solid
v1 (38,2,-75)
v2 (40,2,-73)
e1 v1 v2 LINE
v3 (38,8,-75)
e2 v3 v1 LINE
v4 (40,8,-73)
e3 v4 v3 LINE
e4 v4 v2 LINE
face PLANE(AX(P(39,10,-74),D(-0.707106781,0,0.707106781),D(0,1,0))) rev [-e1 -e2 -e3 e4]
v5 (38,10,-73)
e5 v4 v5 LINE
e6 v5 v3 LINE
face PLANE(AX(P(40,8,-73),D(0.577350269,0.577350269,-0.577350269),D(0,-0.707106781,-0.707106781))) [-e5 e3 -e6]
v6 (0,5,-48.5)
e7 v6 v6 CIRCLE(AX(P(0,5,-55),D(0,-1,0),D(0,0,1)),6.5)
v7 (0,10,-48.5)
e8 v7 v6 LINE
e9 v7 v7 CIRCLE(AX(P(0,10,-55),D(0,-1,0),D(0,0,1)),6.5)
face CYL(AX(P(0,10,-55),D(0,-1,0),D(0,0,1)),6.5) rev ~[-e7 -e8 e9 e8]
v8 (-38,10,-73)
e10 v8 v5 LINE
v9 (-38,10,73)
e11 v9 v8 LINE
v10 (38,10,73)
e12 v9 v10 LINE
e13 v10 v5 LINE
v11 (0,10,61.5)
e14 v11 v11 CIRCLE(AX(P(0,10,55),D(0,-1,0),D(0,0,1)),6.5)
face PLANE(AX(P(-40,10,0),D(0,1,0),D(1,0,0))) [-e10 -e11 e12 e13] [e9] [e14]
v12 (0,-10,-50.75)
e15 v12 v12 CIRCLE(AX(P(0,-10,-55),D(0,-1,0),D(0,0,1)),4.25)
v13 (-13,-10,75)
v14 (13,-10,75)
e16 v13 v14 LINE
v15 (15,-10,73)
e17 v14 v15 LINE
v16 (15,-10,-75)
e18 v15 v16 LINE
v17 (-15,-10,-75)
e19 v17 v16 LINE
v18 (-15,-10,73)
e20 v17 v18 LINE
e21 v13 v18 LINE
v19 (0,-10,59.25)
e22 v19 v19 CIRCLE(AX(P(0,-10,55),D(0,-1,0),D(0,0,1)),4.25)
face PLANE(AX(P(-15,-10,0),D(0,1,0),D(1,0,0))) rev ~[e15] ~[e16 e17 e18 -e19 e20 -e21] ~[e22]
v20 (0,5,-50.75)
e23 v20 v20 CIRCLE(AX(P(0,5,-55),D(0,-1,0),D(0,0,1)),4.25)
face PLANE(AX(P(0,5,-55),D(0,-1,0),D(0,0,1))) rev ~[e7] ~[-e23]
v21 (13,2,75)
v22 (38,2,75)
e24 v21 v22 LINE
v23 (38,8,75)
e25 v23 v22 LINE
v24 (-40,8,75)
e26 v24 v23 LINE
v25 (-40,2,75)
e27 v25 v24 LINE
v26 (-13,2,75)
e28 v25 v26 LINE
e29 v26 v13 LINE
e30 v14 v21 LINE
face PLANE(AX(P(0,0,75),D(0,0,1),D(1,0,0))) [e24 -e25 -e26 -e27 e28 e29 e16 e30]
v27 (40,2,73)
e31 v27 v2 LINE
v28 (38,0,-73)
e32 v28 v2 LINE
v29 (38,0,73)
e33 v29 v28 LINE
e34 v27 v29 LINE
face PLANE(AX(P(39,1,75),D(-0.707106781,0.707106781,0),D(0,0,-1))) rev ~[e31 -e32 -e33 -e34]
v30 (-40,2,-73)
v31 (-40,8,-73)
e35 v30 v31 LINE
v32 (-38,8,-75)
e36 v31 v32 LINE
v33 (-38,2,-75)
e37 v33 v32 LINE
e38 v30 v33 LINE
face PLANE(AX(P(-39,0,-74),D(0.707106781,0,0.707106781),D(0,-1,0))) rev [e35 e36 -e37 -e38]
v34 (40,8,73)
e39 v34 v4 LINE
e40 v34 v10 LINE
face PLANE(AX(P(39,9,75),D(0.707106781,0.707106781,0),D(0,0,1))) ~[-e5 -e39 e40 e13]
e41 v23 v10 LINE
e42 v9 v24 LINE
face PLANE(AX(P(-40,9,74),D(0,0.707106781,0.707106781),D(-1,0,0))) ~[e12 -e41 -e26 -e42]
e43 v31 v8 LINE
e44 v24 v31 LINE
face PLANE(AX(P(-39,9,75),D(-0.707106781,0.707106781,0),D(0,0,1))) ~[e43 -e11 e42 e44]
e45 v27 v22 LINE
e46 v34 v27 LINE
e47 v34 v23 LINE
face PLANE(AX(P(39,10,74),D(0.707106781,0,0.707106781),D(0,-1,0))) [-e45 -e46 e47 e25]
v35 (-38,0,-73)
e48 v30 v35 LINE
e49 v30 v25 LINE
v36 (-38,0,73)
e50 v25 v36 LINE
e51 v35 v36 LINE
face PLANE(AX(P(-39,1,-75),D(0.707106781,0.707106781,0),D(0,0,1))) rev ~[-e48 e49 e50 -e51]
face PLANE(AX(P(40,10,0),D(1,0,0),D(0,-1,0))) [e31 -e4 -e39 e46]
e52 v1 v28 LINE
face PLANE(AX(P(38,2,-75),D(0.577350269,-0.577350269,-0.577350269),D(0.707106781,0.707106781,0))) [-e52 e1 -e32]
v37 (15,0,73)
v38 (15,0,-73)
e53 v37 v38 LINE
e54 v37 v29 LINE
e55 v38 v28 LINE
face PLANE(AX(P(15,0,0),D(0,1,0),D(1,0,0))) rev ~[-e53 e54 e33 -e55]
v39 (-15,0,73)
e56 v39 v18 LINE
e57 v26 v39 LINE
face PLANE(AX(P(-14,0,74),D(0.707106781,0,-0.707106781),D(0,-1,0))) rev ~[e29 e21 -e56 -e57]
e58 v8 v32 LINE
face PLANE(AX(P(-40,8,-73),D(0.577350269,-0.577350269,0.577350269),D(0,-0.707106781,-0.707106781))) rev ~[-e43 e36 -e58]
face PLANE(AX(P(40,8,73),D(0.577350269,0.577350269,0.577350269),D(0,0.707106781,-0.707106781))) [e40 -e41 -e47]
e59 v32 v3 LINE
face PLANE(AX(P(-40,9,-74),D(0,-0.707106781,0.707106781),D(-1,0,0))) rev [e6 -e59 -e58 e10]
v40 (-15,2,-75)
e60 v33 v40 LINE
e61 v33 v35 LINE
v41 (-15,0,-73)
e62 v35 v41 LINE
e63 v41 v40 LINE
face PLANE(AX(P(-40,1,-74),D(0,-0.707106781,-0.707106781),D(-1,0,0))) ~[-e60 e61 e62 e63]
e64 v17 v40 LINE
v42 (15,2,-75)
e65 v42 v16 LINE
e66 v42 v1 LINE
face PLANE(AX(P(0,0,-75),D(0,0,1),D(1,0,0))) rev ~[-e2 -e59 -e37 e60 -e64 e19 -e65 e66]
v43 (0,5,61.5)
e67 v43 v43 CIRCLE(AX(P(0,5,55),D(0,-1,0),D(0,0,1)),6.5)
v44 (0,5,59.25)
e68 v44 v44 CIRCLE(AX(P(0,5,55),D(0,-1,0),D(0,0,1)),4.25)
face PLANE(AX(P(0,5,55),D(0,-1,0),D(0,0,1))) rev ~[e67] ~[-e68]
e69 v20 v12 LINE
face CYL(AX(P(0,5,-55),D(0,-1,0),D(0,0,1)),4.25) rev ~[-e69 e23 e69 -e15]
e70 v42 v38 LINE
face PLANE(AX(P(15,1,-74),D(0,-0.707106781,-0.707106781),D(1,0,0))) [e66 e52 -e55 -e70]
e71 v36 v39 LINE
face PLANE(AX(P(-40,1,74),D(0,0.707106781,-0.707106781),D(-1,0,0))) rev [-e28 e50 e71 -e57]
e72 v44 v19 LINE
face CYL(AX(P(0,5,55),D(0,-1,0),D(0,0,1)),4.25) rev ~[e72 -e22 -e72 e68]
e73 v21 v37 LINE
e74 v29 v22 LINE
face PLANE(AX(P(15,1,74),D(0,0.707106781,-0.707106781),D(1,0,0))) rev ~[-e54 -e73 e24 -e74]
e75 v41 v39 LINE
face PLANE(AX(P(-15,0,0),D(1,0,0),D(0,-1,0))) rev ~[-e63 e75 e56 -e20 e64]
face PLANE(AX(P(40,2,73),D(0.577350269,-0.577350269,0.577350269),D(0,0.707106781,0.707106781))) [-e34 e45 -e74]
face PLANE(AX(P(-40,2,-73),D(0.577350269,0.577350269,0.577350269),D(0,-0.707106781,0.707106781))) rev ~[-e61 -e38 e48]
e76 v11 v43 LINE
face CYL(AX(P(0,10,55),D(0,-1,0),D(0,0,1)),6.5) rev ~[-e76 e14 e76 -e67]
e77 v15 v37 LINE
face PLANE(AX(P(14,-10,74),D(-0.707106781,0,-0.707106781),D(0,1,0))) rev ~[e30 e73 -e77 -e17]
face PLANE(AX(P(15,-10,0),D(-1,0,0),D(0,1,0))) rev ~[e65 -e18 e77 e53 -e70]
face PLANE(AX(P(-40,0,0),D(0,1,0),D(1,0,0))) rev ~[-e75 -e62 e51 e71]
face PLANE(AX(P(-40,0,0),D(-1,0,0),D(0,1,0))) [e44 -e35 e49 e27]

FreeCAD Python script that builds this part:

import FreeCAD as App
import Part
import Sketcher
from FreeCAD import Vector
Q = App.Units.Quantity


def edges_at(feature, points):
    """Names of the edges that pass closest to the given points."""
    edges = feature.Shape.Edges
    near = lambda p: min(range(len(edges)), key=lambda i: edges[i].distToShape(Part.Vertex(*p))[0])
    return sorted({f"Edge{near(p) + 1}" for p in points})


def add_polygon(sketch, points):
    """Adds a closed chain of lines whose ends are joined by coincident constraints."""
    first, n = sketch.GeometryCount, len(points)
    for a, b in zip(points, points[1:] + points[:1]):
        sketch.addGeometry(Part.LineSegment(App.Vector(*a, 0), App.Vector(*b, 0)), False)
    for i in range(n):
        sketch.addConstraint(Sketcher.Constraint("Coincident", first + i, 2, first + (i + 1) % n, 1))

doc = App.newDocument("Part")
body = doc.addObject("PartDesign::Body", "Body")

sketch1 = body.newObject("Sketcher::SketchObject", "Sketch")
sketch1.AttachmentSupport = (doc.getObject("XY_Plane"), [""])
sketch1.MapMode = "FlatFace"
add_polygon(sketch1, [(-40, 10), (-40, 0), (-15, 0), (-15, -10), (15, -10), (15, 0), (40, 0), (40, 10)])
sketch1.addConstraint([
    Sketcher.Constraint("Vertical", 0),
    Sketcher.Constraint("Horizontal", 1),
    Sketcher.Constraint("Vertical", 2),
    Sketcher.Constraint("Horizontal", 3),
    Sketcher.Constraint("Vertical", 4),
    Sketcher.Constraint("Horizontal", 5),
    Sketcher.Constraint("Vertical", 6),
    Sketcher.Constraint("Horizontal", 7),
    Sketcher.Constraint("Symmetric", 1, 2, 4, 2, -1, 1),
    Sketcher.Constraint("Symmetric", 0, 2, 5, 2, -2),
    Sketcher.Constraint("Equal", 0, 2),
    Sketcher.Constraint("DistanceX", 1, 1, 1, 2, Q("25 mm")),
    Sketcher.Constraint("DistanceX", 3, 1, 3, 2, Q("30 mm")),
    Sketcher.Constraint("DistanceY", 0, 2, 0, 1, Q("10 mm")),
])
pad1 = body.newObject("PartDesign::Pad", "Pad")
pad1.Profile = sketch1
pad1.Length = 150
pad1.Midplane = True
doc.recompute()

chamfer = body.newObject("PartDesign::Chamfer", "Chamfer")
chamfer.Base = (pad1, edges_at(pad1, [
    (0, 10, 75),
    (0, 10, -75),
    (15, -5, 75),
    (27.5, 0, 75),
    (40, 0, 0),
    (27.5, 0, -75),
    (40, 5, 75),
    (40, 10, 0),
    (40, 5, -75),
    (-15, -5, 75),
    (-27.5, 0, -75),
    (-40, 10, 0),
    (-40, 5, -75),
    (-40, 0, 0),
    (-27.5, 0, 75),
]))
chamfer.Size = 2

sketch2 = body.newObject("Sketcher::SketchObject", "Sketch001")
sketch2.AttachmentSupport = (doc.getObject("XZ_Plane"), [""])
sketch2.MapMode = "FlatFace"
sketch2.AttachmentOffset = App.Placement(Vector(0, 0, -10), App.Rotation())
sketch2.addGeometry([
    Part.Circle(Vector(0, -55, 0), Vector(0, 0, 1), 4.25),
    Part.Circle(Vector(0, 55, 0), Vector(0, 0, 1), 4.25),
], False)
sketch2.addConstraint([
    Sketcher.Constraint("Equal", 0, 1),
    Sketcher.Constraint("Symmetric", 0, 3, 1, 3, -1, 1),
    Sketcher.Constraint("PointOnObject", 0, 3, -2),
    Sketcher.Constraint("Diameter", 0, Q("8.5 mm")),
    Sketcher.Constraint("DistanceY", 0, 3, -1, 1, Q("55 mm")),
])
doc.recompute()
hole = body.newObject("PartDesign::Hole", "Hole")
hole.Profile = sketch2
hole.ThreadType = "None"
hole.Diameter = 8.5
hole.DepthType = "ThroughAll"
hole.HoleCutType = "Counterbore"
hole.HoleCutDiameter = 13
hole.HoleCutDepth = 5
hole.Reversed = True

doc.recompute()
